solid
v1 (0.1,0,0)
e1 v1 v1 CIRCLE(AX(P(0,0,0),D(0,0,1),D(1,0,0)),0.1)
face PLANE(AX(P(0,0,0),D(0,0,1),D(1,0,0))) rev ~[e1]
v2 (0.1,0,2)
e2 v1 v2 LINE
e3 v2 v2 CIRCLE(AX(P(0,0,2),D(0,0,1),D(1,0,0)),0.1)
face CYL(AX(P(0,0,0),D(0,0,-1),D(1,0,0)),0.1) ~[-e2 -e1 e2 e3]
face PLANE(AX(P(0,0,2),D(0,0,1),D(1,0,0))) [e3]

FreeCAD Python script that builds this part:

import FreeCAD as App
import Part
import Sketcher

V = App.Vector

doc = App.newDocument("Part")
body = doc.addObject("PartDesign::Body", "Body")

sketch1 = doc.addObject("Sketcher::SketchObject", "Sketch")
body.addObject(sketch1)
sketch1.AttachmentSupport = (doc.XY_Plane, [""])
sketch1.MapMode = "FlatFace"
sketch1.addGeometry(Part.Circle(V(0, 0, 0), V(0, 0, 1), 0.1), False)
sketch1.addConstraint([
    Sketcher.Constraint("Coincident", 0, 3, -1, 1),
    Sketcher.Constraint("Diameter", 0, 0.2),
])
pad1 = doc.addObject("PartDesign::Pad", "Pad")
body.addObject(pad1)
pad1.Profile = sketch1
pad1.Length = 2

doc.recompute()
